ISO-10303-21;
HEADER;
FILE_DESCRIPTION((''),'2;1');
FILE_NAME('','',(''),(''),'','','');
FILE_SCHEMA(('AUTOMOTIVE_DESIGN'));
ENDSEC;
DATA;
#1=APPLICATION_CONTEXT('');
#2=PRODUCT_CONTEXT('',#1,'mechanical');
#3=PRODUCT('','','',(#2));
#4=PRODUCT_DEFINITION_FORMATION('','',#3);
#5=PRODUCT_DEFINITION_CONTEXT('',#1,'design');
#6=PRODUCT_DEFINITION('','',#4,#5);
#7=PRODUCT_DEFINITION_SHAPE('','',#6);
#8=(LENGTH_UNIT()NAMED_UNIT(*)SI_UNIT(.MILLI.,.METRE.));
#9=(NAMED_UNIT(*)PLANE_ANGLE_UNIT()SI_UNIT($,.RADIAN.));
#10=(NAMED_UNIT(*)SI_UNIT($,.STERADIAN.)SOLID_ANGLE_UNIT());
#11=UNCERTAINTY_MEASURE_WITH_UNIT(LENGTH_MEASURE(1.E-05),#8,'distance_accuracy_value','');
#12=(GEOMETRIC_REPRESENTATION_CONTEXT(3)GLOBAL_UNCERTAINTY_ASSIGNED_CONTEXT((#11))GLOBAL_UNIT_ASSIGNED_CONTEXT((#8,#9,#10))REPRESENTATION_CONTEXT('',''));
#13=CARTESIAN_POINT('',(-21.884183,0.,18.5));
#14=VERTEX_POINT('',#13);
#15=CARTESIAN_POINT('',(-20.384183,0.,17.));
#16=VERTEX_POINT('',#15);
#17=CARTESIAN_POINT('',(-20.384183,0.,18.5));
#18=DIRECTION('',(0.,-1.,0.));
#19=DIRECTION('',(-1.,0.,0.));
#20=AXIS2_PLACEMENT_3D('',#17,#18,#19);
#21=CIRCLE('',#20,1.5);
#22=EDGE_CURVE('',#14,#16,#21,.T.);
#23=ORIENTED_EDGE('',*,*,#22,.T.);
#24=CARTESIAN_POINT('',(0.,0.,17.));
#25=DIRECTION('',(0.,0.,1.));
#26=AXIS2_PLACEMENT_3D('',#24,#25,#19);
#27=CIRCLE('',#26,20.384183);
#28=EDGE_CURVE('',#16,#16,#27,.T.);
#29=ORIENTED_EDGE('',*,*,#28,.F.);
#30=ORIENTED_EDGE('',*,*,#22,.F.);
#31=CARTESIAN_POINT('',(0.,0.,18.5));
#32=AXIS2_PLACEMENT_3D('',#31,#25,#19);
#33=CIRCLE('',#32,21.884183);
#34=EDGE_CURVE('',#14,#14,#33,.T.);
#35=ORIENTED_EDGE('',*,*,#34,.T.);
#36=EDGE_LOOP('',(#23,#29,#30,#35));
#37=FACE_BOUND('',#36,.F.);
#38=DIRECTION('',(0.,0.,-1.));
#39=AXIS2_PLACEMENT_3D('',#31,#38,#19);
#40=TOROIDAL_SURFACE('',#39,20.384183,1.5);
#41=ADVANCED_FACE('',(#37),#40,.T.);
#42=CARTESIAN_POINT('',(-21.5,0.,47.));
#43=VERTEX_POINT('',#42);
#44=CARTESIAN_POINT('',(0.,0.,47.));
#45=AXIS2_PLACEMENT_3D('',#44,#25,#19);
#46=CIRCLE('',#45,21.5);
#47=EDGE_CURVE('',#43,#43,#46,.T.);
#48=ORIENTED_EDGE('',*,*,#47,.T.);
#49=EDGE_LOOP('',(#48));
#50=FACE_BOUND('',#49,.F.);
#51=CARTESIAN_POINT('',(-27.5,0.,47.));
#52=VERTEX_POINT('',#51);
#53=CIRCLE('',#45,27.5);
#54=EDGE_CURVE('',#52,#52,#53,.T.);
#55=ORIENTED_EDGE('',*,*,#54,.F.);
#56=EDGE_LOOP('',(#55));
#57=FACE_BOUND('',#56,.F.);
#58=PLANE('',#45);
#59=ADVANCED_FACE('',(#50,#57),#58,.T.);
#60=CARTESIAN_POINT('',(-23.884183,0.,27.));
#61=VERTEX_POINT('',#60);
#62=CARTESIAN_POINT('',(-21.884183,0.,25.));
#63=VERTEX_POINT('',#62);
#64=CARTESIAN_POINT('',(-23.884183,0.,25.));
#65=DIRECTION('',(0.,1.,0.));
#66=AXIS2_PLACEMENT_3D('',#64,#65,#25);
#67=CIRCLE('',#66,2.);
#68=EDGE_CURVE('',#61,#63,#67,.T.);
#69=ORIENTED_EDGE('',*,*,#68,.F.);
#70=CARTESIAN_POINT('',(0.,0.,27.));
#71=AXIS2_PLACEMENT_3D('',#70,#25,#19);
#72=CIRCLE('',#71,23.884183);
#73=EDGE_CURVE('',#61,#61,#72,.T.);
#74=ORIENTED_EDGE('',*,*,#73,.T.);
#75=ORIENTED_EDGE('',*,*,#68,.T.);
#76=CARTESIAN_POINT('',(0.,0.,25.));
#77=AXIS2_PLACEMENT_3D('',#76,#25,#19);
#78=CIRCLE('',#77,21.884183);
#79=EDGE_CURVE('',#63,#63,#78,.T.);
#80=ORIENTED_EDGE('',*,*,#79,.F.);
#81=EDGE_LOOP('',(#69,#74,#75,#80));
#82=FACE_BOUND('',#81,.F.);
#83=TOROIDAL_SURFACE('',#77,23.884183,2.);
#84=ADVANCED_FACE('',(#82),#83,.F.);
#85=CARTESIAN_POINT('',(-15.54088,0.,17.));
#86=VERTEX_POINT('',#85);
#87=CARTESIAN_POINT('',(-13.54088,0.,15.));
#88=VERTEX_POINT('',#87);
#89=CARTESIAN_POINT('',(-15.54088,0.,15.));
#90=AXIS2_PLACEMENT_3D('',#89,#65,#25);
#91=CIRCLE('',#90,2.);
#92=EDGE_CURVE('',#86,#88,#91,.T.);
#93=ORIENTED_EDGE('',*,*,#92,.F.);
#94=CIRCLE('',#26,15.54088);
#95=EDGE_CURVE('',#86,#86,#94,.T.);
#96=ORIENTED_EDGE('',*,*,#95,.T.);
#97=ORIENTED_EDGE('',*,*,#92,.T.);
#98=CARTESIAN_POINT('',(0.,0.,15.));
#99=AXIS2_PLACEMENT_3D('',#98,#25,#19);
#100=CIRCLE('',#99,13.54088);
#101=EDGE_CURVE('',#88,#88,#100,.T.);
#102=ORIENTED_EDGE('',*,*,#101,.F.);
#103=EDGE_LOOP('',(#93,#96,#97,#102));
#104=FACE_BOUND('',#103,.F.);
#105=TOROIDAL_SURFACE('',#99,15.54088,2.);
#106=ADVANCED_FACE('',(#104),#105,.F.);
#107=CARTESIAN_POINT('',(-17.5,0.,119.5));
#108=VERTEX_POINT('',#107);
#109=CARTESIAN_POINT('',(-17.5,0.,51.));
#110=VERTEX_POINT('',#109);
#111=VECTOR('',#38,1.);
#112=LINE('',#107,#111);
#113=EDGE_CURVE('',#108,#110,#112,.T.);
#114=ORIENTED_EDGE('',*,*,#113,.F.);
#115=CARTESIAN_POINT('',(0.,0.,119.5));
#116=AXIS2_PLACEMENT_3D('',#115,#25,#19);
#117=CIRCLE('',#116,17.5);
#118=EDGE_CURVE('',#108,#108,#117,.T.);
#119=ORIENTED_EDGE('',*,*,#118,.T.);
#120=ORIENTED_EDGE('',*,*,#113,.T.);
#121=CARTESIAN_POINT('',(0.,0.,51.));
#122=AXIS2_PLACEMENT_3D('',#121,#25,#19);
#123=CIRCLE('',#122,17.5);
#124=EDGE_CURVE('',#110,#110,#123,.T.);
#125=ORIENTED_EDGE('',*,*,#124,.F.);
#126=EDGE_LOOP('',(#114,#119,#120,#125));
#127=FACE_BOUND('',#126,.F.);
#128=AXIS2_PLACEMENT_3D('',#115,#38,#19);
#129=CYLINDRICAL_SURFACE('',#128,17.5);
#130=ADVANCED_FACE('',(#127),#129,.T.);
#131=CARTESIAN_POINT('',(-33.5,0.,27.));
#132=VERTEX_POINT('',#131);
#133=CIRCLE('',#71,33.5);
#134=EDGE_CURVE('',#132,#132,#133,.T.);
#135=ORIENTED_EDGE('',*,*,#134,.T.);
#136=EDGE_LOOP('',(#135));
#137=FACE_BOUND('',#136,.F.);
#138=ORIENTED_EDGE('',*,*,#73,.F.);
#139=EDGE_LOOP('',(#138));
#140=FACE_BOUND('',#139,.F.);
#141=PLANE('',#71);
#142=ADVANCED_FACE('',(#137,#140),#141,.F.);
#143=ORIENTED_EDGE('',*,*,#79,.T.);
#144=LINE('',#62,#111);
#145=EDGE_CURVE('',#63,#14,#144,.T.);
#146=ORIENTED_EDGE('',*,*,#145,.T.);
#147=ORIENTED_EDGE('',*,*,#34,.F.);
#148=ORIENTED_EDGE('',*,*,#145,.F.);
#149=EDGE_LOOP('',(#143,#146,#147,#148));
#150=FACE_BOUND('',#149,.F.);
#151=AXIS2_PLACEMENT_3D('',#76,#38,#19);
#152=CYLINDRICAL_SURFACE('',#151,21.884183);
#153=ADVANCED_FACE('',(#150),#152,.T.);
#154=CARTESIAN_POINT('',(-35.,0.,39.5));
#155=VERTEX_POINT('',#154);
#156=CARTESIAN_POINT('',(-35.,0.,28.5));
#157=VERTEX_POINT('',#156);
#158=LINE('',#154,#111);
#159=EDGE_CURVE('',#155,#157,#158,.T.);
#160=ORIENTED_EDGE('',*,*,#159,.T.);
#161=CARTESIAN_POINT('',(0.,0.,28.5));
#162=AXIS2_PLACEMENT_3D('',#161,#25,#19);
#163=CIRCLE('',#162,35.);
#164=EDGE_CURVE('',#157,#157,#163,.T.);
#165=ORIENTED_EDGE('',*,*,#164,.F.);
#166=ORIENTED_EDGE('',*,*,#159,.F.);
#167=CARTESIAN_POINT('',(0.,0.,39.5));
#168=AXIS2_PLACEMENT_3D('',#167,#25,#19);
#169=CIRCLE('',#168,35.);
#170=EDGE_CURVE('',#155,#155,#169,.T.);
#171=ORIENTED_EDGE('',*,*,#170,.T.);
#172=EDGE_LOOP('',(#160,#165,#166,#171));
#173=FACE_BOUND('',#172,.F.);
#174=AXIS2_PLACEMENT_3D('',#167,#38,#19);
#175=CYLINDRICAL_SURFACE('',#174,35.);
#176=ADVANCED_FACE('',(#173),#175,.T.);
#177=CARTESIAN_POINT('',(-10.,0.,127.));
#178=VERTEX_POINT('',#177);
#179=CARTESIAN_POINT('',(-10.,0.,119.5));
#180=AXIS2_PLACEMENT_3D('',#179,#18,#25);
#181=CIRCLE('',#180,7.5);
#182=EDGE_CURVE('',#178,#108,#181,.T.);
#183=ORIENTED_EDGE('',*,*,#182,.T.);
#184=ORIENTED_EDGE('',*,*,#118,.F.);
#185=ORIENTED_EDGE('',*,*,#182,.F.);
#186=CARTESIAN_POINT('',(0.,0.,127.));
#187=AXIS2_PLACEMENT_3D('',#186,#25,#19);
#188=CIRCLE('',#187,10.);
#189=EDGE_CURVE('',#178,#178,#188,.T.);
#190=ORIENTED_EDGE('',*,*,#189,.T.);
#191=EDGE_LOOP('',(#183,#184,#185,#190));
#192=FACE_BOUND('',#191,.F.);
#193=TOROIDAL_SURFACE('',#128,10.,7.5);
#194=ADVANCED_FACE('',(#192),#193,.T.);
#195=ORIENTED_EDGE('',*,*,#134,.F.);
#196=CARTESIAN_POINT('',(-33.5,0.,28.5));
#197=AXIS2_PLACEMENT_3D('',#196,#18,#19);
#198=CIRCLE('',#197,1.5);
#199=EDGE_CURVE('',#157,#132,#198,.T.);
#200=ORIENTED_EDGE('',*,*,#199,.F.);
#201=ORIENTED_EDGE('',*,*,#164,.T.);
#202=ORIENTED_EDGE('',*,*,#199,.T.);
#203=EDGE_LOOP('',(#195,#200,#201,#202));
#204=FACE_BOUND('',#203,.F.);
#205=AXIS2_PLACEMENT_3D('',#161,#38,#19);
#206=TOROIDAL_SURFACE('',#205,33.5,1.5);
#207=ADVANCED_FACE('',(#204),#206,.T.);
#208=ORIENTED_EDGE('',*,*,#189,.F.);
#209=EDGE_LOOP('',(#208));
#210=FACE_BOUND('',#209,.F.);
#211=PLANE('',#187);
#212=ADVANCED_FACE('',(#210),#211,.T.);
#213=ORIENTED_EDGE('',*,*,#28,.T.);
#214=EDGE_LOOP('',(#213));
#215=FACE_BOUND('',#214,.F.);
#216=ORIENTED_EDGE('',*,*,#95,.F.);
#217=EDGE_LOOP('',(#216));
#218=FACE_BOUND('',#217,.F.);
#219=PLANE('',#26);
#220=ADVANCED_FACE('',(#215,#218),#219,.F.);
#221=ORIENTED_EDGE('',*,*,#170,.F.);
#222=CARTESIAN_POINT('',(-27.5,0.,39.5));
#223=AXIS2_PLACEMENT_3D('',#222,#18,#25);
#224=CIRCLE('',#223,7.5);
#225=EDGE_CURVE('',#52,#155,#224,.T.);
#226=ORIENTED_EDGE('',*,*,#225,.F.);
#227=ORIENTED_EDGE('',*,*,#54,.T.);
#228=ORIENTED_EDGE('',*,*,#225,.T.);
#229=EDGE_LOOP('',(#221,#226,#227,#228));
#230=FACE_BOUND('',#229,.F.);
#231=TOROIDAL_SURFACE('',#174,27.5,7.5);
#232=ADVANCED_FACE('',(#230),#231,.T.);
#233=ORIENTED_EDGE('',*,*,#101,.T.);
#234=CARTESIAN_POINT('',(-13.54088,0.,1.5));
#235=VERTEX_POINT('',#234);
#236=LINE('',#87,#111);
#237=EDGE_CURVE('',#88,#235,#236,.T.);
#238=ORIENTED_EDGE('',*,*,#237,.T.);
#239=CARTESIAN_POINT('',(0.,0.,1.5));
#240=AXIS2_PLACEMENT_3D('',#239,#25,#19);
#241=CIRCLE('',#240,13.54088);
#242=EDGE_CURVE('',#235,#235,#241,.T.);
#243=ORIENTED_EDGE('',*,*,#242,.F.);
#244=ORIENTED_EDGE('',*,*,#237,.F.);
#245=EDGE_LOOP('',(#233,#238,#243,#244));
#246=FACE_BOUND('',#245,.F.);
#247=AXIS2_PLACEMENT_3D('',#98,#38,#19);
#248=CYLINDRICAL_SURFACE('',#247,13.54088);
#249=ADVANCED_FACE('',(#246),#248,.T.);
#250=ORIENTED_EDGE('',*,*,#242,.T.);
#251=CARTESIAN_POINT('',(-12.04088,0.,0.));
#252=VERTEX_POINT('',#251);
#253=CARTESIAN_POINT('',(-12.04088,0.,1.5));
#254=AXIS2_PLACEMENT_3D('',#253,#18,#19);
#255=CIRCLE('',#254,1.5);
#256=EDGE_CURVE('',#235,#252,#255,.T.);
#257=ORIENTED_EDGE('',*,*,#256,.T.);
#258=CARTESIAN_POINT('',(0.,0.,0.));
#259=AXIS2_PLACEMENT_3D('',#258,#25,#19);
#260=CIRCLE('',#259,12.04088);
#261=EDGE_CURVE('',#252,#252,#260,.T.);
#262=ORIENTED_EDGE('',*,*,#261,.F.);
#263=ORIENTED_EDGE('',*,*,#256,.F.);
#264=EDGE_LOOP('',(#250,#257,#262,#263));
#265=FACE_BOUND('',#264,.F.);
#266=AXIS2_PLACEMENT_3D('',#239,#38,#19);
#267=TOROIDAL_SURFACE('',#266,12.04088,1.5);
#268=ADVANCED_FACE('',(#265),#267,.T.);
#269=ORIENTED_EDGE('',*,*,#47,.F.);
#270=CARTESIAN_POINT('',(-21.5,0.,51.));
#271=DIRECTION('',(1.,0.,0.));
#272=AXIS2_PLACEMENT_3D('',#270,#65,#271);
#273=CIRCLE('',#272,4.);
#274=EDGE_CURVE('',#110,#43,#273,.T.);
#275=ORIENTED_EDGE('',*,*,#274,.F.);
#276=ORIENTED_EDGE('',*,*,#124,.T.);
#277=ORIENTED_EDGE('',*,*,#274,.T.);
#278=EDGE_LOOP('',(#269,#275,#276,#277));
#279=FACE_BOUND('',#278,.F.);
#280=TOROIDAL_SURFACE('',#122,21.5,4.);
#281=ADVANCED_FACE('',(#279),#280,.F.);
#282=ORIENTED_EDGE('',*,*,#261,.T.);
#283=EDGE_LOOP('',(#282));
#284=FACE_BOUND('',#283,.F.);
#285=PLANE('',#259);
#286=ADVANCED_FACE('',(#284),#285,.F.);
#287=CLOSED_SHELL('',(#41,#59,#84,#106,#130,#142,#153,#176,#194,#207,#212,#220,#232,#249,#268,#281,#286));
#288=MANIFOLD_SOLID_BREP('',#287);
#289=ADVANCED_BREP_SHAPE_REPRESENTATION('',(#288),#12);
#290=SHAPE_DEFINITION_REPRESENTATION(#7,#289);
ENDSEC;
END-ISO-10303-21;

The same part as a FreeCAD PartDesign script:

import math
import FreeCAD as App
import Part
import Sketcher

doc = App.newDocument("Part")
params = doc.addObject("Spreadsheet::Sheet", "Params")
for row, (alias, value) in enumerate([
    ("sketch1_radius", "4 mm"),
    ("sketch1_radius2", "2 mm"),
    ("sketch1_radius3", "7.5 mm"),
    ("sketch1_radius4", "1.5 mm"),
    ("sketch1_width", "10 mm"),
    ("revolution_angle", "360 deg"),
], start=1):
    params.set(f"A{row}", alias)
    params.set(f"B{row}", "=" + value)
    params.setAlias(f"B{row}", alias)

body = doc.addObject("PartDesign::Body", "Body")

# Sketch on XZ plane
sketch1 = doc.addObject("Sketcher::SketchObject", "Sketch")
body.addObject(sketch1)
sketch1.AttachmentSupport = (doc.XZ_Plane, [""])
sketch1.MapMode = "FlatFace"
sketch1.addGeometry(Part.LineSegment(App.Vector(-12, 0, 0), App.Vector(0, 0, 0)), False)
sketch1.addGeometry(Part.LineSegment(App.Vector(0, 0, 0), App.Vector(0, 127, 0)), False)
sketch1.addGeometry(Part.LineSegment(App.Vector(0, 127, 0), App.Vector(-10, 127, 0)), False)
sketch1.addGeometry(Part.ArcOfCircle(Part.Circle(App.Vector(-10, 119.5, 0), App.Vector(0, 0, 1), 7.5), math.radians(90), math.radians(180)), False)
sketch1.addGeometry(Part.LineSegment(App.Vector(-17.5, 119.5, 0), App.Vector(-17.5, 51, 0)), False)
sketch1.addGeometry(Part.ArcOfCircle(Part.Circle(App.Vector(-21.5, 51, 0), App.Vector(0, 0, 1), 4), math.radians(-90), math.radians(0)), False)
sketch1.addGeometry(Part.LineSegment(App.Vector(-21.5, 47, 0), App.Vector(-27.5, 47, 0)), False)
sketch1.addGeometry(Part.ArcOfCircle(Part.Circle(App.Vector(-27.5, 39.5, 0), App.Vector(0, 0, 1), 7.5), math.radians(90), math.radians(180)), False)
sketch1.addGeometry(Part.LineSegment(App.Vector(-35, 39.5, 0), App.Vector(-35, 28.5, 0)), False)
sketch1.addGeometry(Part.ArcOfCircle(Part.Circle(App.Vector(-33.5, 28.5, 0), App.Vector(0, 0, 1), 1.5), math.radians(180), math.radians(270)), False)
sketch1.addGeometry(Part.LineSegment(App.Vector(-33.5, 27, 0), App.Vector(-23.9, 27, 0)), False)
sketch1.addGeometry(Part.ArcOfCircle(Part.Circle(App.Vector(-23.9, 25, 0), App.Vector(0, 0, 1), 2), math.radians(0), math.radians(90)), False)
sketch1.addGeometry(Part.LineSegment(App.Vector(-21.9, 25, 0), App.Vector(-21.9, 18.5, 0)), False)
sketch1.addGeometry(Part.ArcOfCircle(Part.Circle(App.Vector(-20.4, 18.5, 0), App.Vector(0, 0, 1), 1.5), math.radians(180), math.radians(270)), False)
sketch1.addGeometry(Part.LineSegment(App.Vector(-20.4, 17, 0), App.Vector(-15.5, 17, 0)), False)
sketch1.addGeometry(Part.ArcOfCircle(Part.Circle(App.Vector(-15.5, 15, 0), App.Vector(0, 0, 1), 2), math.radians(0), math.radians(90)), False)
sketch1.addGeometry(Part.LineSegment(App.Vector(-13.5, 15, 0), App.Vector(-13.5, 1.5, 0)), False)
sketch1.addGeometry(Part.ArcOfCircle(Part.Circle(App.Vector(-12, 1.5, 0), App.Vector(0, 0, 1), 1.5), math.radians(180), math.radians(270)), False)
sketch1.addConstraint(Sketcher.Constraint("Coincident", 0, 2, 1, 1))
sketch1.addConstraint(Sketcher.Constraint("Coincident", 1, 2, 2, 1))
sketch1.addConstraint(Sketcher.Constraint("Tangent", 2, 2, 3, 1))
sketch1.addConstraint(Sketcher.Constraint("Tangent", 3, 2, 4, 1))
sketch1.addConstraint(Sketcher.Constraint("Tangent", 4, 2, 5, 2))
sketch1.addConstraint(Sketcher.Constraint("Tangent", 5, 1, 6, 1))
sketch1.addConstraint(Sketcher.Constraint("Tangent", 6, 2, 7, 1))
sketch1.addConstraint(Sketcher.Constraint("Tangent", 7, 2, 8, 1))
sketch1.addConstraint(Sketcher.Constraint("Tangent", 8, 2, 9, 1))
sketch1.addConstraint(Sketcher.Constraint("Tangent", 9, 2, 10, 1))
sketch1.addConstraint(Sketcher.Constraint("Tangent", 10, 2, 11, 2))
sketch1.addConstraint(Sketcher.Constraint("Tangent", 11, 1, 12, 1))
sketch1.addConstraint(Sketcher.Constraint("Tangent", 12, 2, 13, 1))
sketch1.addConstraint(Sketcher.Constraint("Tangent", 13, 2, 14, 1))
sketch1.addConstraint(Sketcher.Constraint("Tangent", 14, 2, 15, 2))
sketch1.addConstraint(Sketcher.Constraint("Tangent", 15, 1, 16, 1))
sketch1.addConstraint(Sketcher.Constraint("Tangent", 16, 2, 17, 1))
sketch1.addConstraint(Sketcher.Constraint("Tangent", 17, 2, 0, 1))
sketch1.addConstraint(Sketcher.Constraint("Horizontal", 0))
sketch1.addConstraint(Sketcher.Constraint("Vertical", 1))
sketch1.addConstraint(Sketcher.Constraint("Horizontal", 2))
sketch1.addConstraint(Sketcher.Constraint("Vertical", 4))
sketch1.addConstraint(Sketcher.Constraint("Horizontal", 6))
sketch1.addConstraint(Sketcher.Constraint("Vertical", 8))
sketch1.addConstraint(Sketcher.Constraint("Horizontal", 10))
sketch1.addConstraint(Sketcher.Constraint("Vertical", 12))
sketch1.addConstraint(Sketcher.Constraint("Horizontal", 14))
sketch1.addConstraint(Sketcher.Constraint("Vertical", 16))
sketch1.addConstraint(Sketcher.Constraint("Coincident", 0, 2, -1, 1))
sketch1.addConstraint(Sketcher.Constraint("Equal", 3, 7))
sketch1.addConstraint(Sketcher.Constraint("Equal", 9, 13))
sketch1.addConstraint(Sketcher.Constraint("Equal", 11, 15))
sketch1.addConstraint(Sketcher.Constraint("Equal", 13, 17))
sketch1.addConstraint(Sketcher.Constraint("Radius", 5, 4.0))
sketch1.addConstraint(Sketcher.Constraint("Radius", 11, 2.0))
sketch1.addConstraint(Sketcher.Constraint("Radius", 3, 7.5))
sketch1.addConstraint(Sketcher.Constraint("Radius", 9, 1.5))
sketch1.addConstraint(Sketcher.Constraint("DistanceX", 2, 2, 2, 1, 10.0))
sketch1.addConstraint(Sketcher.Constraint("DistanceX", 6, 2, 6, 1, 6.0))
sketch1.addConstraint(Sketcher.Constraint("DistanceY", 1, 1, 1, 2, 127.0))
sketch1.addConstraint(Sketcher.Constraint("DistanceY", 8, 2, 8, 1, 11.0))
sketch1.addConstraint(Sketcher.Constraint("DistanceY", 4, 2, 4, 1, 68.5))
sketch1.addConstraint(Sketcher.Constraint("DistanceY", 12, 2, 12, 1, 6.5))
sketch1.addConstraint(Sketcher.Constraint("DistanceX", 0, 1, 0, 2, 12.04088))
sketch1.addConstraint(Sketcher.Constraint("DistanceX", 10, 1, 10, 2, 9.615817))
sketch1.setExpression("Constraints[33]", "Params.sketch1_radius")
sketch1.setExpression("Constraints[34]", "Params.sketch1_radius2")
sketch1.setExpression("Constraints[35]", "Params.sketch1_radius3")
sketch1.setExpression("Constraints[36]", "Params.sketch1_radius4")
sketch1.setExpression("Constraints[37]", "Params.sketch1_width")
revolution = doc.addObject("PartDesign::Revolution", "Revolution")
body.addObject(revolution)
revolution.Profile = sketch1
revolution.ReferenceAxis = (sketch1, ["V_Axis"])
revolution.setExpression("Angle", "Params.revolution_angle")

doc.recompute()
